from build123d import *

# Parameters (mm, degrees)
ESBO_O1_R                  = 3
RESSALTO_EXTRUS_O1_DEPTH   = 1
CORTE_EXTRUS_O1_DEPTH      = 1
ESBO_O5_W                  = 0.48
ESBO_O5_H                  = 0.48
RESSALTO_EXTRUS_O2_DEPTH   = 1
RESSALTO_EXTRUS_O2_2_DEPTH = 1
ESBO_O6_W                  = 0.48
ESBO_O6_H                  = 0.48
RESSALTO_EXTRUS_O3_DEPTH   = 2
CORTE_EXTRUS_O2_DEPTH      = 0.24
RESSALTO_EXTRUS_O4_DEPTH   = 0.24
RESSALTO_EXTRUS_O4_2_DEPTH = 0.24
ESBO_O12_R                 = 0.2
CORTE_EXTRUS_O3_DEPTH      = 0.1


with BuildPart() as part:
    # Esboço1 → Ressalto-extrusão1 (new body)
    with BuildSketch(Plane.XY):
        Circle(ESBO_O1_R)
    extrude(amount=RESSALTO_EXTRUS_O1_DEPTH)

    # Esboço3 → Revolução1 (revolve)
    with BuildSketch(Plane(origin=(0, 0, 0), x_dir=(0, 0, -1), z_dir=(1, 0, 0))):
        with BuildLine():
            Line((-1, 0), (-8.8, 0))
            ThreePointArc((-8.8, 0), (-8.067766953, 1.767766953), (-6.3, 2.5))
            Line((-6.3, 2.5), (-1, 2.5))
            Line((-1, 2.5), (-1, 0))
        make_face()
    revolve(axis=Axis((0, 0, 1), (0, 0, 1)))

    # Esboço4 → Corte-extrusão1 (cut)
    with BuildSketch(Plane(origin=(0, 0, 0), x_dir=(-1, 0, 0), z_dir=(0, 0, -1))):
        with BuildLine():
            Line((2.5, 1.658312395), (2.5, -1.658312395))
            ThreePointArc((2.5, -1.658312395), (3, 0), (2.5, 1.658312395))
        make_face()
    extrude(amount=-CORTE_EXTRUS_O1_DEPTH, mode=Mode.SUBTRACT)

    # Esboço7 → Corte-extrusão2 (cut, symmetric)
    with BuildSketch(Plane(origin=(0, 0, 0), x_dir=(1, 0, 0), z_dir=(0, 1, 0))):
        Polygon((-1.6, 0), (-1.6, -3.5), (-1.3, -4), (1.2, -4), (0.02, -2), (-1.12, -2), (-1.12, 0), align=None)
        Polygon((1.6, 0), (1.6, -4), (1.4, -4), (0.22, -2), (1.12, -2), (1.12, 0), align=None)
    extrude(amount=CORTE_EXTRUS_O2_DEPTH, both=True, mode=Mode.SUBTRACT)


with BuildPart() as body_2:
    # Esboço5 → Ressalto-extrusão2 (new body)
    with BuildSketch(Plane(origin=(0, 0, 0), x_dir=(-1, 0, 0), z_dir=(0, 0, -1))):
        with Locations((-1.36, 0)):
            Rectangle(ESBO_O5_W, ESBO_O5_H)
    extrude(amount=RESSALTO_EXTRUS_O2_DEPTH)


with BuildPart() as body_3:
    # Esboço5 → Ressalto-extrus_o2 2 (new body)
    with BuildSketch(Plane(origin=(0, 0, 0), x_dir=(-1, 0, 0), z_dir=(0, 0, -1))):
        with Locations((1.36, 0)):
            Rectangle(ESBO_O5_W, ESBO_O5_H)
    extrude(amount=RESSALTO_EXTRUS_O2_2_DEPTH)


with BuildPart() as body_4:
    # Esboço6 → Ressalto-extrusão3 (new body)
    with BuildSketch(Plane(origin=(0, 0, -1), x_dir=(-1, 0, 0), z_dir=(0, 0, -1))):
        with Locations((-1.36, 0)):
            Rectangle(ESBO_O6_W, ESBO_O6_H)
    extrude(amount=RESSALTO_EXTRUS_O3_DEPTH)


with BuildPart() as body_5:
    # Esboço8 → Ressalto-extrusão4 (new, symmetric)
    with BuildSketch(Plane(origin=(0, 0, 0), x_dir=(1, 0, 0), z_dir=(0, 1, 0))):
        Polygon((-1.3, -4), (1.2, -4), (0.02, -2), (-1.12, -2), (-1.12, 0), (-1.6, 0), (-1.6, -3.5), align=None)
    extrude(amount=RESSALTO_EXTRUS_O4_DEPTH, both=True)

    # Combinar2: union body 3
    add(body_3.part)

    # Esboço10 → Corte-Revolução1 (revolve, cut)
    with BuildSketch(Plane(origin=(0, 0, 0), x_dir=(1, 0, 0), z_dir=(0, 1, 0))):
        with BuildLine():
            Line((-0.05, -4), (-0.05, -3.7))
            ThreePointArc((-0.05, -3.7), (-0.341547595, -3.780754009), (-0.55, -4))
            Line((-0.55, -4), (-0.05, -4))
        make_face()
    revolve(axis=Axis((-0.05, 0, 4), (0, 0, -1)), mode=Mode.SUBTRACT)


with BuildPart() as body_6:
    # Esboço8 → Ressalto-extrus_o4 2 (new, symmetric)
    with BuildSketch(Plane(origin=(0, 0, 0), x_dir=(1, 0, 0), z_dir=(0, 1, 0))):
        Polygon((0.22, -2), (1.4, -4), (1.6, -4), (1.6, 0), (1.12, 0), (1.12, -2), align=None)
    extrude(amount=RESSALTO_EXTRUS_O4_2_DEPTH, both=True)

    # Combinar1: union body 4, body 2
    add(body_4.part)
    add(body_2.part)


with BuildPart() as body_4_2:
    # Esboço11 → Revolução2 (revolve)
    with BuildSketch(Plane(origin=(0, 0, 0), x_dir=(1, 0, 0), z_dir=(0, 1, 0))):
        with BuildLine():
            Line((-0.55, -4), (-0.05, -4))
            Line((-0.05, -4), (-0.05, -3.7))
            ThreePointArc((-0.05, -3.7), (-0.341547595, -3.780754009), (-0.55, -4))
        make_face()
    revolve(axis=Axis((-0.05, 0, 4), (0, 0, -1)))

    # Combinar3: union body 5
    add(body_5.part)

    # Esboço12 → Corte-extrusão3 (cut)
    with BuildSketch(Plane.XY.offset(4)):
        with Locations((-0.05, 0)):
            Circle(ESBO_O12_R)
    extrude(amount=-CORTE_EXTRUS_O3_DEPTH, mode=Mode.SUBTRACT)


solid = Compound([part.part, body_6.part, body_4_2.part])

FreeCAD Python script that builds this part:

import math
import FreeCAD as App
import Part
import Sketcher

V = App.Vector


def add_polygon(sketch, points):
    """Adds a closed chain of lines whose ends are joined by coincident constraints."""
    first, n = sketch.GeometryCount, len(points)
    for a, b in zip(points, points[1:] + points[:1]):
        sketch.addGeometry(Part.LineSegment(App.Vector(*a, 0), App.Vector(*b, 0)), False)
    for i in range(n):
        sketch.addConstraint(Sketcher.Constraint("Coincident", first + i, 2, first + (i + 1) % n, 1))

doc = App.newDocument("Part")
body = doc.addObject("PartDesign::Body", "Body")

sketch1 = body.newObject("Sketcher::SketchObject", "Sketch")
sketch1.AttachmentSupport = (doc.getObject("XY_Plane"), [""])
sketch1.MapMode = "FlatFace"
sketch1.addGeometry(Part.Circle(V(0, 0, 0), V(0, 0, 1), 3), False)
sketch1.addConstraint([
    Sketcher.Constraint("Coincident", 0, 3, -1, 1),
    Sketcher.Constraint("Diameter", 0, 6.0),
])
pad1 = body.newObject("PartDesign::Pad", "Pad")
pad1.Profile = sketch1
pad1.Length = 1

sketch2 = body.newObject("Sketcher::SketchObject", "Sketch001")
sketch2.AttachmentSupport = (doc.getObject("YZ_Plane"), [""])
sketch2.MapMode = "FlatFace"
sketch2.addGeometry([
    Part.LineSegment(V(0, 8.8, 0), V(0, 1, 0)),
    Part.LineSegment(V(0, 1, 0), V(2.5, 1, 0)),
    Part.LineSegment(V(2.5, 1, 0), V(2.5, 6.3, 0)),
    Part.ArcOfCircle(Part.Circle(V(0, 6.3, 0), V(0, 0, 1), 2.5), math.radians(0), math.radians(90)),
], False)
sketch2.addConstraint([
    Sketcher.Constraint("Coincident", 0, 2, 1, 1),
    Sketcher.Constraint("Coincident", 1, 2, 2, 1),
    Sketcher.Constraint("Tangent", 2, 2, 3, 1),
    Sketcher.Constraint("Coincident", 3, 2, 0, 1),
    Sketcher.Constraint("Vertical", 0),
    Sketcher.Constraint("Horizontal", 1),
    Sketcher.Constraint("Vertical", 2),
    Sketcher.Constraint("PointOnObject", 3, 3, -2),
    Sketcher.Constraint("PointOnObject", 0, 2, -2),
    Sketcher.Constraint("Radius", 3, 2.5),
    Sketcher.Constraint("DistanceY", 0, 2, 0, 1, 7.8),
    Sketcher.Constraint("DistanceY", -1, 1, 0, 2, 1.0),
])
revolution = body.newObject("PartDesign::Revolution", "Revolution")
revolution.Profile = sketch2
revolution.ReferenceAxis = (sketch2, ["V_Axis"])
revolution.Angle = 360

sketch3 = body.newObject("Sketcher::SketchObject", "Sketch002")
sketch3.AttachmentSupport = (doc.getObject("XY_Plane"), [""])
sketch3.MapMode = "FlatFace"
sketch3.addGeometry([
    Part.LineSegment(V(-2.5, 1.7, 0), V(-2.5, -1.7, 0)),
    Part.ArcOfCircle(Part.Circle(V(0, 0, 0), V(0, 0, 1), 3), math.radians(146), math.radians(214)),
], False)
sketch3.addConstraint([
    Sketcher.Constraint("Coincident", 0, 1, 1, 1),
    Sketcher.Constraint("Coincident", 1, 2, 0, 2),
    Sketcher.Constraint("Vertical", 0),
    Sketcher.Constraint("Coincident", 1, 3, -1, 1),
    Sketcher.Constraint("Radius", 1, 3.0),
    Sketcher.Constraint("DistanceX", 0, 1, -1, 1, 2.5),
])
pocket1 = body.newObject("PartDesign::Pocket", "Pocket")
pocket1.Profile = sketch3
pocket1.Length = 1
pocket1.Reversed = True

sketch4 = body.newObject("Sketcher::SketchObject", "Sketch003")
sketch4.AttachmentSupport = (doc.getObject("XZ_Plane"), [""])
sketch4.MapMode = "FlatFace"
add_polygon(sketch4, [(-1.6, 0), (-1.6, 3.5), (-1.3, 4), (1.2, 4), (0.02, 2), (-1.12, 2), (-1.12, 0)])
add_polygon(sketch4, [(1.6, 4), (1.6, 0), (1.12, 0), (1.12, 2), (0.22, 2), (1.4, 4)])
sketch4.addConstraint([
    Sketcher.Constraint("Vertical", 0),
    Sketcher.Constraint("Horizontal", 2),
    Sketcher.Constraint("Horizontal", 4),
    Sketcher.Constraint("Vertical", 5),
    Sketcher.Constraint("Horizontal", 6),
    Sketcher.Constraint("Vertical", 7),
    Sketcher.Constraint("Horizontal", 8),
    Sketcher.Constraint("Vertical", 9),
    Sketcher.Constraint("Horizontal", 10),
    Sketcher.Constraint("Horizontal", 12),
    Sketcher.Constraint("Symmetric", 6, 2, 7, 2, -1, 1),
    Sketcher.Constraint("Symmetric", 5, 2, 8, 2, -2),
    Sketcher.Constraint("Parallel", 3, 11),
    Sketcher.Constraint("Horizontal", 4, 2, 9, 2),
    Sketcher.Constraint("Horizontal", 2, 2, 11, 2),
    Sketcher.Constraint("DistanceY", 5, 2, 5, 1, 2.0),
    Sketcher.Constraint("DistanceY", 7, 2, 7, 1, 4.0),
    Sketcher.Constraint("DistanceX", 2, 1, 2, 2, 2.5),
    Sketcher.Constraint("DistanceX", 10, 2, 10, 1, 0.9),
    Sketcher.Constraint("DistanceX", 12, 1, 12, 2, 0.2),
    Sketcher.Constraint("DistanceY", 0, 1, 0, 2, 3.5),
    Sketcher.Constraint("DistanceX", 4, 2, 4, 1, 1.14),
    Sketcher.Constraint("DistanceX", 6, 2, 6, 1, 0.48),
    Sketcher.Constraint("DistanceX", 0, 2, -1, 1, 1.6),
])
pocket2 = body.newObject("PartDesign::Pocket", "Pocket001")
pocket2.Profile = sketch4
pocket2.Length = 0.48
pocket2.Midplane = True
body2 = doc.addObject("PartDesign::Body", "Body001")

sketch5 = body2.newObject("Sketcher::SketchObject", "Sketch004")
sketch5.AttachmentSupport = (doc.getObject("XY_Plane001"), [""])
sketch5.MapMode = "FlatFace"
add_polygon(sketch5, [(1.6, 0.24), (1.6, -0.24), (1.12, -0.24), (1.12, 0.24)])
sketch5.addConstraint([
    Sketcher.Constraint("Vertical", 0),
    Sketcher.Constraint("Horizontal", 1),
    Sketcher.Constraint("Vertical", 2),
    Sketcher.Constraint("Horizontal", 3),
    Sketcher.Constraint("Equal", 3, 0),
    Sketcher.Constraint("DistanceX", 1, 2, 1, 1, 0.48),
    Sketcher.Constraint("DistanceX", -1, 1, 0, 2, 1.6),
    Sketcher.Constraint("DistanceY", 0, 2, -1, 1, 0.24),
])
pad2 = body2.newObject("PartDesign::Pad", "Pad001")
pad2.Profile = sketch5
pad2.Length = 1
pad2.Reversed = True
body3 = doc.addObject("PartDesign::Body", "Body002")

sketch6 = body3.newObject("Sketcher::SketchObject", "Sketch005")
sketch6.AttachmentSupport = (doc.getObject("XY_Plane002"), [""])
sketch6.MapMode = "FlatFace"
add_polygon(sketch6, [(-1.12, 0.24), (-1.12, -0.24), (-1.6, -0.24), (-1.6, 0.24)])
sketch6.addConstraint([
    Sketcher.Constraint("Vertical", 0),
    Sketcher.Constraint("Horizontal", 1),
    Sketcher.Constraint("Vertical", 2),
    Sketcher.Constraint("Horizontal", 3),
    Sketcher.Constraint("Equal", 3, 0),
    Sketcher.Constraint("DistanceX", 1, 2, 1, 1, 0.48),
    Sketcher.Constraint("DistanceX", 1, 2, -1, 1, 1.6),
    Sketcher.Constraint("DistanceY", 0, 2, -1, 1, 0.24),
])
pad3 = body3.newObject("PartDesign::Pad", "Pad002")
pad3.Profile = sketch6
pad3.Length = 1
pad3.Reversed = True
body4 = doc.addObject("PartDesign::Body", "Body003")

sketch7 = body4.newObject("Sketcher::SketchObject", "Sketch006")
sketch7.AttachmentSupport = (doc.getObject("XY_Plane003"), [""])
sketch7.MapMode = "FlatFace"
sketch7.AttachmentOffset = App.Placement(V(0, 0, -1), App.Rotation())
add_polygon(sketch7, [(1.6, 0.24), (1.6, -0.24), (1.12, -0.24), (1.12, 0.24)])
sketch7.addConstraint([
    Sketcher.Constraint("Vertical", 0),
    Sketcher.Constraint("Horizontal", 1),
    Sketcher.Constraint("Vertical", 2),
    Sketcher.Constraint("Horizontal", 3),
    Sketcher.Constraint("Equal", 3, 0),
    Sketcher.Constraint("DistanceX", 1, 2, 1, 1, 0.48),
    Sketcher.Constraint("DistanceX", -1, 1, 0, 2, 1.6),
    Sketcher.Constraint("DistanceY", 0, 2, -1, 1, 0.24),
])
pad4 = body4.newObject("PartDesign::Pad", "Pad003")
pad4.Profile = sketch7
pad4.Length = 2
pad4.Reversed = True
body5 = doc.addObject("PartDesign::Body", "Body004")

sketch8 = body5.newObject("Sketcher::SketchObject", "Sketch007")
sketch8.AttachmentSupport = (doc.getObject("XZ_Plane004"), [""])
sketch8.MapMode = "FlatFace"
add_polygon(sketch8, [(-1.3, 4), (1.2, 4), (0.02, 2), (-1.12, 2), (-1.12, 0), (-1.6, 0), (-1.6, 3.5)])
sketch8.addConstraint([
    Sketcher.Constraint("Horizontal", 0),
    Sketcher.Constraint("Horizontal", 2),
    Sketcher.Constraint("Vertical", 3),
    Sketcher.Constraint("Horizontal", 4),
    Sketcher.Constraint("Vertical", 5),
    Sketcher.Constraint("PointOnObject", 3, 2, -1),
    Sketcher.Constraint("DistanceY", 3, 2, 3, 1, 2.0),
    Sketcher.Constraint("DistanceX", 0, 1, 0, 2, 2.5),
    Sketcher.Constraint("DistanceY", 5, 1, 5, 2, 3.5),
    Sketcher.Constraint("DistanceY", -1, 1, 0, 2, 4.0),
    Sketcher.Constraint("DistanceX", 2, 2, 2, 1, 1.14),
    Sketcher.Constraint("DistanceX", 4, 2, 4, 1, 0.48),
    Sketcher.Constraint("DistanceX", -1, 1, 0, 2, 1.2),
    Sketcher.Constraint("DistanceX", 4, 2, -1, 1, 1.6),
])
pad5 = body5.newObject("PartDesign::Pad", "Pad004")
pad5.Profile = sketch8
pad5.Length = 0.48
pad5.Midplane = True
doc.recompute()

boolean = body5.newObject("PartDesign::Boolean", "Boolean")
boolean.Type = "Fuse"
boolean.addObjects([body3])

sketch9 = body5.newObject("Sketcher::SketchObject", "Sketch008")
sketch9.AttachmentSupport = (doc.getObject("XZ_Plane004"), [""])
sketch9.MapMode = "FlatFace"
sketch9.addGeometry([
    Part.LineSegment(V(-0.05, 4, 0), V(-0.05, 3.7, 0)),
    Part.ArcOfCircle(Part.Circle(V(-0.05, 4.27, 0), V(0, 0, 1), 0.57), math.radians(-152), math.radians(-90)),
    Part.LineSegment(V(-0.55, 4, 0), V(-0.05, 4, 0)),
], False)
sketch9.addGeometry(Part.LineSegment(V(-0.05, 4.27, 0), V(-0.05, 3.7, 0)), True)
sketch9.addConstraint([
    Sketcher.Constraint("Coincident", 0, 2, 1, 2),
    Sketcher.Constraint("Coincident", 1, 1, 2, 1),
    Sketcher.Constraint("Coincident", 2, 2, 0, 1),
    Sketcher.Constraint("Vertical", 0),
    Sketcher.Constraint("Horizontal", 2),
    Sketcher.Constraint("Vertical", 3),
    Sketcher.Constraint("Coincident", 3, 1, 1, 3),
    Sketcher.Constraint("Coincident", 3, 2, 0, 2),
    Sketcher.Constraint("DistanceX", 2, 1, 2, 2, 0.5),
    Sketcher.Constraint("DistanceY", 0, 2, 0, 1, 0.3),
    Sketcher.Constraint("DistanceY", -1, 1, 1, 1, 4.0),
    Sketcher.Constraint("DistanceX", 1, 3, -1, 1, 0.05),
])
groove = body5.newObject("PartDesign::Groove", "Groove")
groove.Profile = sketch9
groove.ReferenceAxis = (sketch9, ["Axis0"])
groove.Angle = 360
body6 = doc.addObject("PartDesign::Body", "Body005")
body6.AllowCompound = True

sketch10 = body6.newObject("Sketcher::SketchObject", "Sketch009")
sketch10.AttachmentSupport = (doc.getObject("XZ_Plane005"), [""])
sketch10.MapMode = "FlatFace"
add_polygon(sketch10, [(0.22, 2), (1.4, 4), (1.6, 4), (1.6, 0), (1.12, 0), (1.12, 2)])
sketch10.addConstraint([
    Sketcher.Constraint("Horizontal", 1),
    Sketcher.Constraint("Vertical", 2),
    Sketcher.Constraint("Horizontal", 3),
    Sketcher.Constraint("Vertical", 4),
    Sketcher.Constraint("Horizontal", 5),
    Sketcher.Constraint("PointOnObject", 2, 2, -1),
    Sketcher.Constraint("DistanceY", 2, 2, 2, 1, 4.0),
    Sketcher.Constraint("DistanceY", 4, 1, 4, 2, 2.0),
    Sketcher.Constraint("DistanceX", 1, 1, 1, 2, 0.2),
    Sketcher.Constraint("DistanceX", 5, 2, 5, 1, 0.9),
    Sketcher.Constraint("DistanceX", 3, 2, 3, 1, 0.48),
    Sketcher.Constraint("DistanceX", -1, 1, 0, 2, 1.4),
])
pad6 = body6.newObject("PartDesign::Pad", "Pad005")
pad6.Profile = sketch10
pad6.Length = 0.48
pad6.Midplane = True
doc.recompute()

boolean2 = body6.newObject("PartDesign::Boolean", "Boolean001")
boolean2.Type = "Fuse"
boolean2.addObjects([body4])
doc.recompute()

boolean3 = body6.newObject("PartDesign::Boolean", "Boolean002")
boolean3.Type = "Fuse"
boolean3.addObjects([body2])
body7 = doc.addObject("PartDesign::Body", "Body006")

sketch11 = body7.newObject("Sketcher::SketchObject", "Sketch010")
sketch11.AttachmentSupport = (doc.getObject("XZ_Plane006"), [""])
sketch11.MapMode = "FlatFace"
sketch11.addGeometry([
    Part.LineSegment(V(-0.55, 4, 0), V(-0.05, 4, 0)),
    Part.LineSegment(V(-0.05, 4, 0), V(-0.05, 3.7, 0)),
    Part.ArcOfCircle(Part.Circle(V(-0.05, 4.27, 0), V(0, 0, 1), 0.57), math.radians(-152), math.radians(-90)),
], False)
sketch11.addGeometry(Part.LineSegment(V(-0.05, 4.27, 0), V(-0.05, 3.7, 0)), True)
sketch11.addConstraint([
    Sketcher.Constraint("Coincident", 0, 2, 1, 1),
    Sketcher.Constraint("Coincident", 1, 2, 2, 2),
    Sketcher.Constraint("Coincident", 2, 1, 0, 1),
    Sketcher.Constraint("Horizontal", 0),
    Sketcher.Constraint("Vertical", 1),
    Sketcher.Constraint("Vertical", 3),
    Sketcher.Constraint("Coincident", 3, 1, 2, 3),
    Sketcher.Constraint("Coincident", 3, 2, 1, 2),
    Sketcher.Constraint("DistanceX", 0, 1, 0, 2, 0.5),
    Sketcher.Constraint("DistanceY", 1, 2, 1, 1, 0.3),
    Sketcher.Constraint("DistanceY", -1, 1, 0, 2, 4.0),
    Sketcher.Constraint("DistanceX", 2, 3, -1, 1, 0.05),
])
revolution2 = body7.newObject("PartDesign::Revolution", "Revolution001")
revolution2.Profile = sketch11
revolution2.ReferenceAxis = (sketch11, ["Axis0"])
revolution2.Angle = 360
doc.recompute()

boolean4 = body7.newObject("PartDesign::Boolean", "Boolean003")
boolean4.Type = "Fuse"
boolean4.addObjects([body5])

sketch12 = body7.newObject("Sketcher::SketchObject", "Sketch011")
sketch12.AttachmentSupport = (doc.getObject("XY_Plane006"), [""])
sketch12.MapMode = "FlatFace"
sketch12.AttachmentOffset = App.Placement(V(0, 0, 4), App.Rotation())
sketch12.addGeometry(Part.Circle(V(-0.05, 0, 0), V(0, 0, 1), 0.2), False)
sketch12.addConstraint([
    Sketcher.Constraint("PointOnObject", 0, 3, -1),
    Sketcher.Constraint("Diameter", 0, 0.4),
    Sketcher.Constraint("DistanceX", 0, 3, -1, 1, 0.05),
])
pocket3 = body7.newObject("PartDesign::Pocket", "Pocket002")
pocket3.Profile = sketch12
pocket3.Length = 0.1

doc.recompute()
